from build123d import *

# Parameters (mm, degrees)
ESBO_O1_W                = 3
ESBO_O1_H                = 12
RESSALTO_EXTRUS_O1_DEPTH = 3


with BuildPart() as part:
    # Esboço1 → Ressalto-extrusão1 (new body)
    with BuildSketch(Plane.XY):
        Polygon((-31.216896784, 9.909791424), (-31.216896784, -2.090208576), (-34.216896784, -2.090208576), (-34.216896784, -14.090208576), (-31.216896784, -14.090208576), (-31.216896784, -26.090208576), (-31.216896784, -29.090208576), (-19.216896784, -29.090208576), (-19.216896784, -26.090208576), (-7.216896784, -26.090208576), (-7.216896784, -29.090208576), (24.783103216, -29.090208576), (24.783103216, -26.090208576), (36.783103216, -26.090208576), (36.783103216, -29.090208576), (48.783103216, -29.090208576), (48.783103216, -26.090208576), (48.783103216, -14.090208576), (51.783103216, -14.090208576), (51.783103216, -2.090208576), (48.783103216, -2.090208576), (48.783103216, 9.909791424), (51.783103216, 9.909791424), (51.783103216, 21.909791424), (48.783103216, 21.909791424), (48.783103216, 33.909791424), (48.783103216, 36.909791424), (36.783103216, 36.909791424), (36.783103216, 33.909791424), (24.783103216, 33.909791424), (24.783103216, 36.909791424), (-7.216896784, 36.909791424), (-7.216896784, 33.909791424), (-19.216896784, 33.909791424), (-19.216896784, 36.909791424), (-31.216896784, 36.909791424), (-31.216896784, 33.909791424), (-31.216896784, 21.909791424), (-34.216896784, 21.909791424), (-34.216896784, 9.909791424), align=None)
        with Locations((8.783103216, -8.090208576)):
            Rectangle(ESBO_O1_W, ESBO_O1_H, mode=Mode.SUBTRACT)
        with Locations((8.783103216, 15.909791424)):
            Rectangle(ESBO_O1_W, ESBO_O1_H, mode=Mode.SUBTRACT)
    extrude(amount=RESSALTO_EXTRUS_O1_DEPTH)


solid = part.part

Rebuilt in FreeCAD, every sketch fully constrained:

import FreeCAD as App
import Part
import Sketcher
Q = App.Units.Quantity


def add_polygon(sketch, points):
    """Adds a closed chain of lines whose ends are joined by coincident constraints."""
    first, n = sketch.GeometryCount, len(points)
    for a, b in zip(points, points[1:] + points[:1]):
        sketch.addGeometry(Part.LineSegment(App.Vector(*a, 0), App.Vector(*b, 0)), False)
    for i in range(n):
        sketch.addConstraint(Sketcher.Constraint("Coincident", first + i, 2, first + (i + 1) % n, 1))

doc = App.newDocument("Part")
body = doc.addObject("PartDesign::Body", "Body")

# Sketch on XY plane
sketch1 = body.newObject("Sketcher::SketchObject", "Sketch")
sketch1.AttachmentSupport = (doc.getObject("XY_Plane"), [""])
sketch1.MapMode = "FlatFace"
add_polygon(sketch1, [(-31.2, 9.9), (-31.2, -2.1), (-34.2, -2.1), (-34.2, -14.1), (-31.2, -14.1), (-31.2, -29.1), (-19.2, -29.1), (-19.2, -26.1), (-7.2, -26.1), (-7.2, -29.1), (24.8, -29.1), (24.8, -26.1), (36.8, -26.1), (36.8, -29.1), (48.8, -29.1), (48.8, -14.1), (51.8, -14.1), (51.8, -2.1), (48.8, -2.1), (48.8, 9.9), (51.8, 9.9), (51.8, 21.9), (48.8, 21.9), (48.8, 36.9), (36.8, 36.9), (36.8, 33.9), (24.8, 33.9), (24.8, 36.9), (-7.2, 36.9), (-7.2, 33.9), (-19.2, 33.9), (-19.2, 36.9), (-31.2, 36.9), (-31.2, 21.9), (-34.2, 21.9), (-34.2, 9.9)])  # lines 0-35
add_polygon(sketch1, [(10.3, -14.1), (7.3, -14.1), (7.3, -2.1), (10.3, -2.1)])  # lines 36-39
add_polygon(sketch1, [(10.3, 9.9), (7.3, 9.9), (7.3, 21.9), (10.3, 21.9)])  # lines 40-43
sketch1.addConstraint([
    Sketcher.Constraint("Vertical", 0),
    Sketcher.Constraint("Horizontal", 1),
    Sketcher.Constraint("Vertical", 2),
    Sketcher.Constraint("Horizontal", 3),
    Sketcher.Constraint("Vertical", 4),
    Sketcher.Constraint("Horizontal", 5),
    Sketcher.Constraint("Vertical", 6),
    Sketcher.Constraint("Horizontal", 7),
    Sketcher.Constraint("Vertical", 8),
    Sketcher.Constraint("Horizontal", 9),
    Sketcher.Constraint("Vertical", 10),
    Sketcher.Constraint("Horizontal", 11),
    Sketcher.Constraint("Vertical", 12),
    Sketcher.Constraint("Horizontal", 13),
    Sketcher.Constraint("Vertical", 14),
    Sketcher.Constraint("Horizontal", 15),
    Sketcher.Constraint("Vertical", 16),
    Sketcher.Constraint("Horizontal", 17),
    Sketcher.Constraint("Vertical", 18),
    Sketcher.Constraint("Horizontal", 19),
    Sketcher.Constraint("Vertical", 20),
    Sketcher.Constraint("Horizontal", 21),
    Sketcher.Constraint("Vertical", 22),
    Sketcher.Constraint("Horizontal", 23),
    Sketcher.Constraint("Vertical", 24),
    Sketcher.Constraint("Horizontal", 25),
    Sketcher.Constraint("Vertical", 26),
    Sketcher.Constraint("Horizontal", 27),
    Sketcher.Constraint("Vertical", 28),
    Sketcher.Constraint("Horizontal", 29),
    Sketcher.Constraint("Vertical", 30),
    Sketcher.Constraint("Horizontal", 31),
    Sketcher.Constraint("Vertical", 32),
    Sketcher.Constraint("Horizontal", 33),
    Sketcher.Constraint("Vertical", 34),
    Sketcher.Constraint("Horizontal", 35),
    Sketcher.Constraint("Horizontal", 36),
    Sketcher.Constraint("Vertical", 37),
    Sketcher.Constraint("Horizontal", 38),
    Sketcher.Constraint("Vertical", 39),
    Sketcher.Constraint("Horizontal", 40),
    Sketcher.Constraint("Vertical", 41),
    Sketcher.Constraint("Horizontal", 42),
    Sketcher.Constraint("Vertical", 43),
    Sketcher.Constraint("Horizontal", 5, 2, 8, 2),
    Sketcher.Constraint("Horizontal", 7, 2, 10, 2),
    Sketcher.Constraint("Horizontal", 9, 2, 12, 2),
    Sketcher.Constraint("Horizontal", 3, 2, 14, 2),
    Sketcher.Constraint("Horizontal", 1, 2, 16, 2),
    Sketcher.Constraint("Horizontal", 23, 2, 26, 2),
    Sketcher.Constraint("Horizontal", 25, 2, 28, 2),
    Sketcher.Constraint("Horizontal", 27, 2, 30, 2),
    Sketcher.Constraint("Horizontal", 21, 2, 32, 2),
    Sketcher.Constraint("Horizontal", 19, 2, 34, 2),
    Sketcher.Constraint("Horizontal", 15, 2, 36, 2),
    Sketcher.Constraint("Horizontal", 17, 2, 37, 2),
    Sketcher.Constraint("Horizontal", 35, 2, 40, 2),
    Sketcher.Constraint("Horizontal", 33, 2, 41, 2),
    Sketcher.Constraint("Vertical", 0, 2, 3, 2),
    Sketcher.Constraint("Vertical", 14, 2, 17, 2),
    Sketcher.Constraint("Vertical", 16, 2, 19, 2),
    Sketcher.Constraint("Vertical", 18, 2, 21, 2),
    Sketcher.Constraint("Vertical", 12, 2, 23, 2),
    Sketcher.Constraint("Vertical", 10, 2, 25, 2),
    Sketcher.Constraint("Vertical", 8, 2, 27, 2),
    Sketcher.Constraint("Vertical", 6, 2, 29, 2),
    Sketcher.Constraint("Vertical", 4, 2, 31, 2),
    Sketcher.Constraint("Vertical", 2, 2, 33, 2),
    Sketcher.Constraint("Vertical", 37, 2, 40, 2),
    Sketcher.Constraint("Vertical", 39, 2, 42, 2),
    Sketcher.Constraint("Equal", 5, 7),
    Sketcher.Constraint("Equal", 7, 11),
    Sketcher.Constraint("Equal", 11, 13),
    Sketcher.Constraint("Equal", 3, 15),
    Sketcher.Constraint("Equal", 35, 36),
    Sketcher.Constraint("Equal", 31, 0),
    Sketcher.Constraint("Equal", 0, 2),
    Sketcher.Constraint("Equal", 42, 6),
    Sketcher.Constraint("Equal", 18, 20),
    Sketcher.Constraint("Equal", 14, 22),
    Sketcher.Constraint("Equal", 12, 24),
    Sketcher.Constraint("DistanceX", 1, 2, 1, 1, Q("3 mm")),
    Sketcher.Constraint("DistanceX", 5, 1, 5, 2, Q("12 mm")),
    Sketcher.Constraint("DistanceX", 9, 1, 9, 2, Q("32 mm")),
    Sketcher.Constraint("DistanceY", 4, 2, 4, 1, Q("15 mm")),
    Sketcher.Constraint("DistanceX", 7, 2, 36, 2, Q("14.5 mm")),
    Sketcher.Constraint("DistanceY", 0, 2, -1, 1, Q("2.090209 mm")),
    Sketcher.Constraint("DistanceX", 0, 2, -1, 1, Q("31.216897 mm")),
])
pad1 = body.newObject("PartDesign::Pad", "Pad")
pad1.Profile = sketch1
pad1.Length = 3

doc.recompute()
